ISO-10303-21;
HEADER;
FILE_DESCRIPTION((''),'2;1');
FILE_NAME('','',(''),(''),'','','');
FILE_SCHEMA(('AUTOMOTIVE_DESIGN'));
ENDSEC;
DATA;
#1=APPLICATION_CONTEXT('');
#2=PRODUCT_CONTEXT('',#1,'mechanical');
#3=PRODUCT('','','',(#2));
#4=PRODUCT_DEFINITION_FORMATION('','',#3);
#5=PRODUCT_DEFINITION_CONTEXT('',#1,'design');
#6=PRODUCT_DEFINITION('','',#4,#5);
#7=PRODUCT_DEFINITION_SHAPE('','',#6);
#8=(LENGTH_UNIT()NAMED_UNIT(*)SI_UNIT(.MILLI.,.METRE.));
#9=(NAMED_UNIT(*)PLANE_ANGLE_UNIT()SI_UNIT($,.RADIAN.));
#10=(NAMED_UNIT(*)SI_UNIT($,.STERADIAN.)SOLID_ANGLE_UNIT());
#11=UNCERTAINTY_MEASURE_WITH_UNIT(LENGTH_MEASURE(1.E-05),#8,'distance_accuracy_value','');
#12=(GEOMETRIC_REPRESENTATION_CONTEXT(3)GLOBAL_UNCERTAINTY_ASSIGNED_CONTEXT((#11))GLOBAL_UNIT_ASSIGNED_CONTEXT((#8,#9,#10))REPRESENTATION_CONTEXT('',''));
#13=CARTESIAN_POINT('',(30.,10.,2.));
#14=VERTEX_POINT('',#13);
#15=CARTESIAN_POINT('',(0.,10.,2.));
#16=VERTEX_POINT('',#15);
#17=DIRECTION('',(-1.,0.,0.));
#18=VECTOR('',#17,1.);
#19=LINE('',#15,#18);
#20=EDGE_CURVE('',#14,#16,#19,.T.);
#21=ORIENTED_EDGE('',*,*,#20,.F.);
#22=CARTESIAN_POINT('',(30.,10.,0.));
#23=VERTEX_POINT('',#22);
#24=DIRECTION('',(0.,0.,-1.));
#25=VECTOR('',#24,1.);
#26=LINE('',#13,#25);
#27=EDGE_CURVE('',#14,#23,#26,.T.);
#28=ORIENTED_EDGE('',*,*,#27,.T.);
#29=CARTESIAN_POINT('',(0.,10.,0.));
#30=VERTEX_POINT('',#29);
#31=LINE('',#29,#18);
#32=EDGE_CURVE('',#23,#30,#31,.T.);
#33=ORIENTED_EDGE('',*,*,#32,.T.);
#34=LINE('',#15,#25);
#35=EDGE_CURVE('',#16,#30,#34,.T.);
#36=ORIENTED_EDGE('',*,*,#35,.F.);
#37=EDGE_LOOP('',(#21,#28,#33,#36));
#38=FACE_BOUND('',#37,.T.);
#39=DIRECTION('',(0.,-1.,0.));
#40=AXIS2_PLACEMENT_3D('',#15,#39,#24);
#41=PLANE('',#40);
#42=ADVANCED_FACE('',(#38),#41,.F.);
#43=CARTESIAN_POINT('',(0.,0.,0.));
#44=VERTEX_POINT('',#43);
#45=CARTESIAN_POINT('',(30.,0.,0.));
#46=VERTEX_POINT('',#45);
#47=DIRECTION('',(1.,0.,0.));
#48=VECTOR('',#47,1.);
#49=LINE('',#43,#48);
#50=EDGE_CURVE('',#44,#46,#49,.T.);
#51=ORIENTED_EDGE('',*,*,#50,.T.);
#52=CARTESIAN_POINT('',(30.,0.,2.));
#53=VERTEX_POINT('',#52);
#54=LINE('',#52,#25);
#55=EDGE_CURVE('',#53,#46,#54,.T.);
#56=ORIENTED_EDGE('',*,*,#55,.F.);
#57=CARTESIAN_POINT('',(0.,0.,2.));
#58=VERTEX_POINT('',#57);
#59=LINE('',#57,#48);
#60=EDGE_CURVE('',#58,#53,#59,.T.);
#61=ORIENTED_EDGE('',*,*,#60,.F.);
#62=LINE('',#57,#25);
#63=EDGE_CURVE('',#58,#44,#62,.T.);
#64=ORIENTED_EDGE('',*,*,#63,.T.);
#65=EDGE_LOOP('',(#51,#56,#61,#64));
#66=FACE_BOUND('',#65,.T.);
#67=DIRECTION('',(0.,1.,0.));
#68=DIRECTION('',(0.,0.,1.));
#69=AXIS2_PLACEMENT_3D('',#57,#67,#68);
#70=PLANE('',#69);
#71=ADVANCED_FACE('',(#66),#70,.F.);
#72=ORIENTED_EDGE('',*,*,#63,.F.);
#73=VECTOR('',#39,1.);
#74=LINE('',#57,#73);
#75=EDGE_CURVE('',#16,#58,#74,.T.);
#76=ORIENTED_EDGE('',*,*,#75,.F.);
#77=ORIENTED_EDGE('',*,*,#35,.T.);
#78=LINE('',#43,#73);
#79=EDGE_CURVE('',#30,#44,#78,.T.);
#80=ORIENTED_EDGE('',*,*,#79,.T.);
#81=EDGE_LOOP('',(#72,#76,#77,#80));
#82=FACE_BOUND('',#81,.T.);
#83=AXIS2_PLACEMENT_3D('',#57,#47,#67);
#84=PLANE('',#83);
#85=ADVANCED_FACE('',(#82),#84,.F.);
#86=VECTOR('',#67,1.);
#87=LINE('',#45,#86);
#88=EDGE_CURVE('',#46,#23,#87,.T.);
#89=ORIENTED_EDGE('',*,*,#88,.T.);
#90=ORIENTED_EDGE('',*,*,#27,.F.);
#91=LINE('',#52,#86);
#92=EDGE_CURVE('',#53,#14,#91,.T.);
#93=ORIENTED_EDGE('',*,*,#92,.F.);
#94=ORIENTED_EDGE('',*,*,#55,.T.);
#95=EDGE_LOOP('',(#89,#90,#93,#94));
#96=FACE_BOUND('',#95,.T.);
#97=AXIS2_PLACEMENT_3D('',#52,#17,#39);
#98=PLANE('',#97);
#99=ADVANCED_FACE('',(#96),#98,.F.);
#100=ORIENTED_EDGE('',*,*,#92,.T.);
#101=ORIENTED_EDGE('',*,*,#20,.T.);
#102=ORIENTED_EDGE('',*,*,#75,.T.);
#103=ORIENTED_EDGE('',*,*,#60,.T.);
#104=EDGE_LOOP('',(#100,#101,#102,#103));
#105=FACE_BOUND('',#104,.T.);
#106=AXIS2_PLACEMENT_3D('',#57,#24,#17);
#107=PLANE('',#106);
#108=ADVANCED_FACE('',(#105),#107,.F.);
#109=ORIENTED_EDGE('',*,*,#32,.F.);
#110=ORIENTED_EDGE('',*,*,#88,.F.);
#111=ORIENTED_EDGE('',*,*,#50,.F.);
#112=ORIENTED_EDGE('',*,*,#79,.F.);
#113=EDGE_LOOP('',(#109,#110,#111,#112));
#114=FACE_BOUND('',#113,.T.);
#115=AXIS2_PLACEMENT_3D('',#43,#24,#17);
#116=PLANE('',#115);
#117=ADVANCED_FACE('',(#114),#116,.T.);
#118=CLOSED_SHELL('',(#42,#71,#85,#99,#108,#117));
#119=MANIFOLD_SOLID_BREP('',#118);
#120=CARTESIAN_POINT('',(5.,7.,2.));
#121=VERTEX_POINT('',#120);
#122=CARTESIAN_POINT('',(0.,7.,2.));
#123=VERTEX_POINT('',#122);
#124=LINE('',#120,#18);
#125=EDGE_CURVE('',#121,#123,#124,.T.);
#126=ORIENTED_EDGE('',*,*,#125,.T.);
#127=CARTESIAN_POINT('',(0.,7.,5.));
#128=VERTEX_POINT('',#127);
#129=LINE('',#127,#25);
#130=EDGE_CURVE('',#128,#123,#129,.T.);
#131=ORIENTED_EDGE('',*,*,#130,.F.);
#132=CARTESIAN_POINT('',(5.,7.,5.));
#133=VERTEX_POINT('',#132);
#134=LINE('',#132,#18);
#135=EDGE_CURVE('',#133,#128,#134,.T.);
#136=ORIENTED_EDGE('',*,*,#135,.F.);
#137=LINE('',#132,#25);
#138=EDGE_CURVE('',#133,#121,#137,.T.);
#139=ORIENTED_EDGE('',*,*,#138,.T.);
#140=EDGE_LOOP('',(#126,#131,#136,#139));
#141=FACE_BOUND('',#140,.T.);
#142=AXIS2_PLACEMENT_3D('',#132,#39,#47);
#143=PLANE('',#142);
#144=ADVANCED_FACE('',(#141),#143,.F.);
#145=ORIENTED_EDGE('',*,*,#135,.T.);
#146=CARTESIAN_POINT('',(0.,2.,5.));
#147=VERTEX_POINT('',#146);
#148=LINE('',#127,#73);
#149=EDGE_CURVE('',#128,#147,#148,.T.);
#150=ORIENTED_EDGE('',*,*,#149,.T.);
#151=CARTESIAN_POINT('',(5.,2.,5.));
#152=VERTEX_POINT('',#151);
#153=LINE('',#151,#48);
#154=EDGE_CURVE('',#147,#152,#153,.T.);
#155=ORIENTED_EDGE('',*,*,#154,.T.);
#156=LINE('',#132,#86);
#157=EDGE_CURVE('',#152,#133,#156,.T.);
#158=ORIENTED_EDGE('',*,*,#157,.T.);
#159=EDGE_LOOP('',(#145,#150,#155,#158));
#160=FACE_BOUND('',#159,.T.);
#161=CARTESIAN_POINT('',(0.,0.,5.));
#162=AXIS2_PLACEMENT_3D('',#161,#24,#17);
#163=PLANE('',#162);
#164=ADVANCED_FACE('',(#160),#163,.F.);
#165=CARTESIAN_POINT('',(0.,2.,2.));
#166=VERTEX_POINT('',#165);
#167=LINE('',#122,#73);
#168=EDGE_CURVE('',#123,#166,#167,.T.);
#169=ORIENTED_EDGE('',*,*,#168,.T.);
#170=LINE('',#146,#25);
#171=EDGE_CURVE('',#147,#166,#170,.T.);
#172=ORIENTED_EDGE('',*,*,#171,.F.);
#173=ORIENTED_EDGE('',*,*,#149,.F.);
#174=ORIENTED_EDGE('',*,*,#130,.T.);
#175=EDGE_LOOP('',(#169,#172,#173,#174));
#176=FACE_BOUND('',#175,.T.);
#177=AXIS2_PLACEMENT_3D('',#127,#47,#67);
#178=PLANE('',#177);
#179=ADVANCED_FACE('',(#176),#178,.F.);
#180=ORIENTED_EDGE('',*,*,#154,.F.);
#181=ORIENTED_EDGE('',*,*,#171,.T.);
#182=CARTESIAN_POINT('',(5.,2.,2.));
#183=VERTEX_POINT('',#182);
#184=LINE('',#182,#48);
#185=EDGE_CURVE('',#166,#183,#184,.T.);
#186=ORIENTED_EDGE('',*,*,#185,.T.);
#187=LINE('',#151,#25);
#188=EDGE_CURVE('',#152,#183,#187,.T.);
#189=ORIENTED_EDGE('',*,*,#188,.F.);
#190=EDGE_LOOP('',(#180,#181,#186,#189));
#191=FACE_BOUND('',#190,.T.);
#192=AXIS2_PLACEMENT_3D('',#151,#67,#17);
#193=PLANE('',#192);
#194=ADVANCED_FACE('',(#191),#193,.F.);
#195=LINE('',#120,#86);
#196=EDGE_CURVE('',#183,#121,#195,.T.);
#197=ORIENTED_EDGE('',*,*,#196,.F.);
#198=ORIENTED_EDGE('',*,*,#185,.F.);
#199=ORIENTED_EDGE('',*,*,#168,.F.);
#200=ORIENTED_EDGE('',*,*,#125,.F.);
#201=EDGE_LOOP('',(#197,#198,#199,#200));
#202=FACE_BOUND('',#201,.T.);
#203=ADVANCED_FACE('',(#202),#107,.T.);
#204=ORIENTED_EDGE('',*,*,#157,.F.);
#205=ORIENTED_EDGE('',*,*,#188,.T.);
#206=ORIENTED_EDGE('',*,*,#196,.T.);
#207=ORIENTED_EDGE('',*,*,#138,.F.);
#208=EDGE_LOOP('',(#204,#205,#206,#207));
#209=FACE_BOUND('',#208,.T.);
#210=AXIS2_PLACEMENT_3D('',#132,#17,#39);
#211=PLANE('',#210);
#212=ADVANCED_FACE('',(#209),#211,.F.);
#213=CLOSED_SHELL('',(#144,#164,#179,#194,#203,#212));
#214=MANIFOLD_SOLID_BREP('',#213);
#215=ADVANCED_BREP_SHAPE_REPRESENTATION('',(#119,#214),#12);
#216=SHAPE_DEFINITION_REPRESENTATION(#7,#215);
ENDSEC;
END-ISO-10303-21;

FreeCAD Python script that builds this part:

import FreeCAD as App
import Part
import Sketcher
from FreeCAD import Vector


def add_polygon(sketch, points):
    """Adds a closed chain of lines whose ends are joined by coincident constraints."""
    first, n = sketch.GeometryCount, len(points)
    for a, b in zip(points, points[1:] + points[:1]):
        sketch.addGeometry(Part.LineSegment(App.Vector(*a, 0), App.Vector(*b, 0)), False)
    for i in range(n):
        sketch.addConstraint(Sketcher.Constraint("Coincident", first + i, 2, first + (i + 1) % n, 1))

doc = App.newDocument("Part")
body = doc.addObject("PartDesign::Body", "Body")

# Sketch on XY plane
sketch1 = body.newObject("Sketcher::SketchObject", "Sketch")
sketch1.AttachmentSupport = (doc.getObject("XY_Plane"), [""])
sketch1.MapMode = "FlatFace"
add_polygon(sketch1, [(0, 10), (0, 0), (30, 0), (30, 10)])  # lines 0-3
sketch1.addConstraint([
    Sketcher.Constraint("Vertical", 0),
    Sketcher.Constraint("Horizontal", 1),
    Sketcher.Constraint("Vertical", 2),
    Sketcher.Constraint("Horizontal", 3),
    Sketcher.Constraint("Coincident", 0, 2, -1, 1),
    Sketcher.Constraint("DistanceX", 1, 1, 1, 2, 30.0),
    Sketcher.Constraint("DistanceY", 0, 2, 0, 1, 10.0),
])
pad1 = body.newObject("PartDesign::Pad", "Pad")
pad1.Profile = sketch1
pad1.Length = 2
body2 = doc.addObject("PartDesign::Body", "Body001")

# Sketch on XY plane
sketch2 = body2.newObject("Sketcher::SketchObject", "Sketch001")
sketch2.AttachmentSupport = (doc.getObject("XY_Plane001"), [""])
sketch2.MapMode = "FlatFace"
sketch2.AttachmentOffset = App.Placement(Vector(0, 0, 2), App.Rotation())
add_polygon(sketch2, [(0, 7), (0, 2), (5, 2), (5, 7)])  # lines 0-3
sketch2.addConstraint([
    Sketcher.Constraint("Vertical", 0),
    Sketcher.Constraint("Horizontal", 1),
    Sketcher.Constraint("Vertical", 2),
    Sketcher.Constraint("Horizontal", 3),
    Sketcher.Constraint("PointOnObject", 0, 2, -2),
    Sketcher.Constraint("Equal", 3, 0),
    Sketcher.Constraint("DistanceX", 1, 1, 1, 2, 5.0),
    Sketcher.Constraint("DistanceY", -1, 1, 0, 2, 2.0),
])
pad2 = body2.newObject("PartDesign::Pad", "Pad001")
pad2.Profile = sketch2
pad2.Length = 3

doc.recompute()
